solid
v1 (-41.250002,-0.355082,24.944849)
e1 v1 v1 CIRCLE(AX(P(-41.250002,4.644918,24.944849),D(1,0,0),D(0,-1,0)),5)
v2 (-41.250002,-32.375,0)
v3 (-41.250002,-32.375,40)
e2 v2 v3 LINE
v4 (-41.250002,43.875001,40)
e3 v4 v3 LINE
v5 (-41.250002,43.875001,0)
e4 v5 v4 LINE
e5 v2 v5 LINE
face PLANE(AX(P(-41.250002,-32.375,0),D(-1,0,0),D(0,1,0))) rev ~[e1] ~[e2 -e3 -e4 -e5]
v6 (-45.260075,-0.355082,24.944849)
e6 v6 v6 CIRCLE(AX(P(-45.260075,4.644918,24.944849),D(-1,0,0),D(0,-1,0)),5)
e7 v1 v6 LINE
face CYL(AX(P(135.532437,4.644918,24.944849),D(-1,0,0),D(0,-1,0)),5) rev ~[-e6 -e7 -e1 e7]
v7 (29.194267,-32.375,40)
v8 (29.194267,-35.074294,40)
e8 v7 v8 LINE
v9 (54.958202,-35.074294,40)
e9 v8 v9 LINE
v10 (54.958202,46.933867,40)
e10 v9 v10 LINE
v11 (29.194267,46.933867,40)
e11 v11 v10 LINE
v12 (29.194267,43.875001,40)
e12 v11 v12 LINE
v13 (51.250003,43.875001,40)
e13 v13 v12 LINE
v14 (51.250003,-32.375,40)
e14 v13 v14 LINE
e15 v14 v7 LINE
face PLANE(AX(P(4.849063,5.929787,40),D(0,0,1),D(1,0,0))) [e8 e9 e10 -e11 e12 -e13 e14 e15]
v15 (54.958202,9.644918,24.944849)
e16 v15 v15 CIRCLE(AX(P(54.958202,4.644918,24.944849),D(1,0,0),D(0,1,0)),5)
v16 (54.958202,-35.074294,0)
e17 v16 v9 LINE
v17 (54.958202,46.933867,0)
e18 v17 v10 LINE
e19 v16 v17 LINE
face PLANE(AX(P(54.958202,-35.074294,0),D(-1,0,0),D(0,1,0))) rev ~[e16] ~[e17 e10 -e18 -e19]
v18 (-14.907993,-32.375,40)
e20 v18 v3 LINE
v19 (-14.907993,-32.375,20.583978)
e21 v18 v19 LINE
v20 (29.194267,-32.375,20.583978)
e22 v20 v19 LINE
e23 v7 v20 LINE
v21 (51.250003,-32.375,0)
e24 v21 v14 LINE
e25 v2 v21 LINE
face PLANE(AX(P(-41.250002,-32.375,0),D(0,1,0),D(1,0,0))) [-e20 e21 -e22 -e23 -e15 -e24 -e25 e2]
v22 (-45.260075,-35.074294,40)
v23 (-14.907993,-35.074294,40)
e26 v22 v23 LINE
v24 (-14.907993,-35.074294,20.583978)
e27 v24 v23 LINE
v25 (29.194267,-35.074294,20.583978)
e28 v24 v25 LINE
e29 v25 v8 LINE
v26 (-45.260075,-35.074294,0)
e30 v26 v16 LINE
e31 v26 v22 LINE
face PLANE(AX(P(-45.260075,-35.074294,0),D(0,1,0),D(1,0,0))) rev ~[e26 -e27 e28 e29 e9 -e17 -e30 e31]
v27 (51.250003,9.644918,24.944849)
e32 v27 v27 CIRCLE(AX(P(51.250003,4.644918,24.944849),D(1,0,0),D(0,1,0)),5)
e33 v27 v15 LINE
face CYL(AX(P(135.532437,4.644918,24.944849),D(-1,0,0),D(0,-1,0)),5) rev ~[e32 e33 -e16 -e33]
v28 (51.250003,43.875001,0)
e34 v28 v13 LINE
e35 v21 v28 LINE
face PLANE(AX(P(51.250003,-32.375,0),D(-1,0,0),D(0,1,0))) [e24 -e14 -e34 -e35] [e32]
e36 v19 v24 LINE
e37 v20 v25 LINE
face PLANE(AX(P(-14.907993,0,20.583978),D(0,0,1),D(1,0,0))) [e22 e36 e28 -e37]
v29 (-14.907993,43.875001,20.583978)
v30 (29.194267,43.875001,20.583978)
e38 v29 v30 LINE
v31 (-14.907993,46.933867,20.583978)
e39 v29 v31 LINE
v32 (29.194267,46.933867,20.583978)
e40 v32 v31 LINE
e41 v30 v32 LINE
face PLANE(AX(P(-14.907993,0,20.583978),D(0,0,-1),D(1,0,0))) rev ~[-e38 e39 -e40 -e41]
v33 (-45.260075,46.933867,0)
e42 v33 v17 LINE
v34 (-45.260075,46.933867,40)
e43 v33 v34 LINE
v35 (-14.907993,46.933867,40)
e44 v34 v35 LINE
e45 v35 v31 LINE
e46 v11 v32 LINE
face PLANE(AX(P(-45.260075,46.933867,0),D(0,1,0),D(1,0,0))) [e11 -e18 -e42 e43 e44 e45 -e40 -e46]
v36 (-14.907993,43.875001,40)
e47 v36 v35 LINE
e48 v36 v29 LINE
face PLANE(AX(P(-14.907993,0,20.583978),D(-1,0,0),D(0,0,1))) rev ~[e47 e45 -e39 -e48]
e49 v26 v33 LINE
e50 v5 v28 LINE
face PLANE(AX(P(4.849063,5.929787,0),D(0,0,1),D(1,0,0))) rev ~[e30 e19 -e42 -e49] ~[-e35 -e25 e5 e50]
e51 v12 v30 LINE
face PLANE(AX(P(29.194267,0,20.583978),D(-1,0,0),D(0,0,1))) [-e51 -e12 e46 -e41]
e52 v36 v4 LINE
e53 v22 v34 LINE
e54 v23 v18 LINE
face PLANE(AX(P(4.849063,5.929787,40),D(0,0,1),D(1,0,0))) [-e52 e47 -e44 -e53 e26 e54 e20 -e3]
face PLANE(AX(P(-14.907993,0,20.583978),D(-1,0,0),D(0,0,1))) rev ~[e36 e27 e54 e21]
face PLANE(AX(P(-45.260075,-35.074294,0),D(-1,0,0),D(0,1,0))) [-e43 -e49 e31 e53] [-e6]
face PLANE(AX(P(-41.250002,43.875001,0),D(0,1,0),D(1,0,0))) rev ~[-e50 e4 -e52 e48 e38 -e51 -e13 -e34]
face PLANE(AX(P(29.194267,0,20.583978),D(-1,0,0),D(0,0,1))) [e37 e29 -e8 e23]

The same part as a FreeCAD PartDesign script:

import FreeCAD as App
import Part
import Sketcher
from FreeCAD import Vector
Q = App.Units.Quantity

doc = App.newDocument("Part")
body = doc.addObject("PartDesign::Body", "Body")

# Sketch on XY plane
sketch1 = body.newObject("Sketcher::SketchObject", "Sketch")
sketch1.AttachmentSupport = (doc.getObject("XY_Plane"), [""])
sketch1.MapMode = "FlatFace"
sketch1.addGeometry(Part.LineSegment(Vector(-45.260075, 46.933867, 0), Vector(-45.260075, -35.074294, 0)), False)
sketch1.addGeometry(Part.LineSegment(Vector(-45.260075, -35.074294, 0), Vector(54.958202, -35.074294, 0)), False)
sketch1.addGeometry(Part.LineSegment(Vector(54.958202, -35.074294, 0), Vector(54.958202, 46.933867, 0)), False)
sketch1.addGeometry(Part.LineSegment(Vector(54.958202, 46.933867, 0), Vector(-45.260075, 46.933867, 0)), False)
sketch1.addConstraint(Sketcher.Constraint("Coincident", 0, 2, 1, 1))
sketch1.addConstraint(Sketcher.Constraint("Coincident", 1, 2, 2, 1))
sketch1.addConstraint(Sketcher.Constraint("Coincident", 2, 2, 3, 1))
sketch1.addConstraint(Sketcher.Constraint("Coincident", 3, 2, 0, 1))
sketch1.addConstraint(Sketcher.Constraint("Vertical", 0))
sketch1.addConstraint(Sketcher.Constraint("Horizontal", 1))
sketch1.addConstraint(Sketcher.Constraint("Vertical", 2))
sketch1.addConstraint(Sketcher.Constraint("Horizontal", 3))
sketch1.addConstraint(Sketcher.Constraint("DistanceY", 0, 2, 0, 1, Q("82.008161 mm")))
sketch1.addConstraint(Sketcher.Constraint("DistanceX", -1, 1, 1, 2, Q("54.958202 mm")))
sketch1.addConstraint(Sketcher.Constraint("DistanceX", 1, 1, 1, 2, Q("100.218277 mm")))
sketch1.addConstraint(Sketcher.Constraint("DistanceY", 0, 2, -1, 1, Q("35.074294 mm")))
pad1 = body.newObject("PartDesign::Pad", "Pad")
pad1.Profile = sketch1
pad1.Length = 40

# Sketch on YZ plane
sketch2 = body.newObject("Sketcher::SketchObject", "Sketch001")
sketch2.AttachmentSupport = (doc.getObject("YZ_Plane"), [""])
sketch2.MapMode = "FlatFace"
sketch2.addGeometry(Part.Circle(Vector(4.644918, 24.944849, 0), Vector(0, 0, 1), 5), False)
sketch2.addConstraint(Sketcher.Constraint("Diameter", 0, Q("10 mm")))
sketch2.addConstraint(Sketcher.Constraint("DistanceY", -1, 1, 0, 3, Q("24.944849 mm")))
sketch2.addConstraint(Sketcher.Constraint("DistanceX", -1, 1, 0, 3, Q("4.644918 mm")))
pocket1 = body.newObject("PartDesign::Pocket", "Pocket")
pocket1.Profile = sketch2
pocket1.Type = "ThroughAll"
pocket1.Reversed = True

# Sketch on YZ plane
sketch3 = body.newObject("Sketcher::SketchObject", "Sketch002")
sketch3.AttachmentSupport = (doc.getObject("YZ_Plane"), [""])
sketch3.MapMode = "FlatFace"
sketch3.addGeometry(Part.Circle(Vector(4.644918, 24.944849, 0), Vector(0, 0, 1), 5), False)
sketch3.addConstraint(Sketcher.Constraint("Diameter", 0, Q("10 mm")))
sketch3.addConstraint(Sketcher.Constraint("DistanceY", -1, 1, 0, 3, Q("24.944849 mm")))
sketch3.addConstraint(Sketcher.Constraint("DistanceX", -1, 1, 0, 3, Q("4.644918 mm")))
doc.recompute()
hole = body.newObject("PartDesign::Hole", "Hole")
hole.Profile = sketch3
hole.ThreadType = "None"
hole.Diameter = 10
hole.DepthType = "ThroughAll"

# Sketch on XZ plane
sketch4 = body.newObject("Sketcher::SketchObject", "Sketch003")
sketch4.AttachmentSupport = (doc.getObject("XZ_Plane"), [""])
sketch4.MapMode = "FlatFace"
sketch4.addGeometry(Part.LineSegment(Vector(-14.907993, 53.388122, 0), Vector(-14.907993, 20.583978, 0)), False)
sketch4.addGeometry(Part.LineSegment(Vector(-14.907993, 20.583978, 0), Vector(29.194267, 20.583978, 0)), False)
sketch4.addGeometry(Part.LineSegment(Vector(29.194267, 20.583978, 0), Vector(29.194267, 53.388122, 0)), False)
sketch4.addGeometry(Part.LineSegment(Vector(29.194267, 53.388122, 0), Vector(-14.907993, 53.388122, 0)), False)
sketch4.addConstraint(Sketcher.Constraint("Coincident", 0, 2, 1, 1))
sketch4.addConstraint(Sketcher.Constraint("Coincident", 1, 2, 2, 1))
sketch4.addConstraint(Sketcher.Constraint("Coincident", 2, 2, 3, 1))
sketch4.addConstraint(Sketcher.Constraint("Coincident", 3, 2, 0, 1))
sketch4.addConstraint(Sketcher.Constraint("Vertical", 0))
sketch4.addConstraint(Sketcher.Constraint("Horizontal", 1))
sketch4.addConstraint(Sketcher.Constraint("Vertical", 2))
sketch4.addConstraint(Sketcher.Constraint("Horizontal", 3))
sketch4.addConstraint(Sketcher.Constraint("DistanceX", 1, 1, 1, 2, Q("44.102261 mm")))
sketch4.addConstraint(Sketcher.Constraint("DistanceY", 0, 2, 0, 1, Q("32.804145 mm")))
sketch4.addConstraint(Sketcher.Constraint("DistanceX", 0, 2, -1, 1, Q("14.907993 mm")))
sketch4.addConstraint(Sketcher.Constraint("DistanceY", -1, 1, 0, 2, Q("20.583978 mm")))
pocket2 = body.newObject("PartDesign::Pocket", "Pocket001")
pocket2.Profile = sketch4
pocket2.Type = "ThroughAll"
pocket2.Midplane = True

# Sketch on XY plane
sketch5 = body.newObject("Sketcher::SketchObject", "Sketch004")
sketch5.AttachmentSupport = (doc.getObject("XY_Plane"), [""])
sketch5.MapMode = "FlatFace"
sketch5.addGeometry(Part.LineSegment(Vector(-41.250002, 43.875001, 0), Vector(-41.250002, -32.375, 0)), False)
sketch5.addGeometry(Part.LineSegment(Vector(-41.250002, -32.375, 0), Vector(51.250003, -32.375, 0)), False)
sketch5.addGeometry(Part.LineSegment(Vector(51.250003, -32.375, 0), Vector(51.250003, 43.875001, 0)), False)
sketch5.addGeometry(Part.LineSegment(Vector(51.250003, 43.875001, 0), Vector(-41.250002, 43.875001, 0)), False)
sketch5.addConstraint(Sketcher.Constraint("Coincident", 0, 2, 1, 1))
sketch5.addConstraint(Sketcher.Constraint("Coincident", 1, 2, 2, 1))
sketch5.addConstraint(Sketcher.Constraint("Coincident", 2, 2, 3, 1))
sketch5.addConstraint(Sketcher.Constraint("Coincident", 3, 2, 0, 1))
sketch5.addConstraint(Sketcher.Constraint("Vertical", 0))
sketch5.addConstraint(Sketcher.Constraint("Horizontal", 1))
sketch5.addConstraint(Sketcher.Constraint("Vertical", 2))
sketch5.addConstraint(Sketcher.Constraint("Horizontal", 3))
sketch5.addConstraint(Sketcher.Constraint("DistanceY", 0, 2, 0, 1, Q("76.250002 mm")))
sketch5.addConstraint(Sketcher.Constraint("DistanceX", 0, 2, -1, 1, Q("41.250002 mm")))
sketch5.addConstraint(Sketcher.Constraint("DistanceY", 0, 2, -1, 1, Q("32.375 mm")))
sketch5.addConstraint(Sketcher.Constraint("DistanceX", 1, 1, 1, 2, Q("92.500005 mm")))
pocket3 = body.newObject("PartDesign::Pocket", "Pocket002")
pocket3.Profile = sketch5
pocket3.Type = "ThroughAll"
pocket3.Midplane = True

doc.recompute()
